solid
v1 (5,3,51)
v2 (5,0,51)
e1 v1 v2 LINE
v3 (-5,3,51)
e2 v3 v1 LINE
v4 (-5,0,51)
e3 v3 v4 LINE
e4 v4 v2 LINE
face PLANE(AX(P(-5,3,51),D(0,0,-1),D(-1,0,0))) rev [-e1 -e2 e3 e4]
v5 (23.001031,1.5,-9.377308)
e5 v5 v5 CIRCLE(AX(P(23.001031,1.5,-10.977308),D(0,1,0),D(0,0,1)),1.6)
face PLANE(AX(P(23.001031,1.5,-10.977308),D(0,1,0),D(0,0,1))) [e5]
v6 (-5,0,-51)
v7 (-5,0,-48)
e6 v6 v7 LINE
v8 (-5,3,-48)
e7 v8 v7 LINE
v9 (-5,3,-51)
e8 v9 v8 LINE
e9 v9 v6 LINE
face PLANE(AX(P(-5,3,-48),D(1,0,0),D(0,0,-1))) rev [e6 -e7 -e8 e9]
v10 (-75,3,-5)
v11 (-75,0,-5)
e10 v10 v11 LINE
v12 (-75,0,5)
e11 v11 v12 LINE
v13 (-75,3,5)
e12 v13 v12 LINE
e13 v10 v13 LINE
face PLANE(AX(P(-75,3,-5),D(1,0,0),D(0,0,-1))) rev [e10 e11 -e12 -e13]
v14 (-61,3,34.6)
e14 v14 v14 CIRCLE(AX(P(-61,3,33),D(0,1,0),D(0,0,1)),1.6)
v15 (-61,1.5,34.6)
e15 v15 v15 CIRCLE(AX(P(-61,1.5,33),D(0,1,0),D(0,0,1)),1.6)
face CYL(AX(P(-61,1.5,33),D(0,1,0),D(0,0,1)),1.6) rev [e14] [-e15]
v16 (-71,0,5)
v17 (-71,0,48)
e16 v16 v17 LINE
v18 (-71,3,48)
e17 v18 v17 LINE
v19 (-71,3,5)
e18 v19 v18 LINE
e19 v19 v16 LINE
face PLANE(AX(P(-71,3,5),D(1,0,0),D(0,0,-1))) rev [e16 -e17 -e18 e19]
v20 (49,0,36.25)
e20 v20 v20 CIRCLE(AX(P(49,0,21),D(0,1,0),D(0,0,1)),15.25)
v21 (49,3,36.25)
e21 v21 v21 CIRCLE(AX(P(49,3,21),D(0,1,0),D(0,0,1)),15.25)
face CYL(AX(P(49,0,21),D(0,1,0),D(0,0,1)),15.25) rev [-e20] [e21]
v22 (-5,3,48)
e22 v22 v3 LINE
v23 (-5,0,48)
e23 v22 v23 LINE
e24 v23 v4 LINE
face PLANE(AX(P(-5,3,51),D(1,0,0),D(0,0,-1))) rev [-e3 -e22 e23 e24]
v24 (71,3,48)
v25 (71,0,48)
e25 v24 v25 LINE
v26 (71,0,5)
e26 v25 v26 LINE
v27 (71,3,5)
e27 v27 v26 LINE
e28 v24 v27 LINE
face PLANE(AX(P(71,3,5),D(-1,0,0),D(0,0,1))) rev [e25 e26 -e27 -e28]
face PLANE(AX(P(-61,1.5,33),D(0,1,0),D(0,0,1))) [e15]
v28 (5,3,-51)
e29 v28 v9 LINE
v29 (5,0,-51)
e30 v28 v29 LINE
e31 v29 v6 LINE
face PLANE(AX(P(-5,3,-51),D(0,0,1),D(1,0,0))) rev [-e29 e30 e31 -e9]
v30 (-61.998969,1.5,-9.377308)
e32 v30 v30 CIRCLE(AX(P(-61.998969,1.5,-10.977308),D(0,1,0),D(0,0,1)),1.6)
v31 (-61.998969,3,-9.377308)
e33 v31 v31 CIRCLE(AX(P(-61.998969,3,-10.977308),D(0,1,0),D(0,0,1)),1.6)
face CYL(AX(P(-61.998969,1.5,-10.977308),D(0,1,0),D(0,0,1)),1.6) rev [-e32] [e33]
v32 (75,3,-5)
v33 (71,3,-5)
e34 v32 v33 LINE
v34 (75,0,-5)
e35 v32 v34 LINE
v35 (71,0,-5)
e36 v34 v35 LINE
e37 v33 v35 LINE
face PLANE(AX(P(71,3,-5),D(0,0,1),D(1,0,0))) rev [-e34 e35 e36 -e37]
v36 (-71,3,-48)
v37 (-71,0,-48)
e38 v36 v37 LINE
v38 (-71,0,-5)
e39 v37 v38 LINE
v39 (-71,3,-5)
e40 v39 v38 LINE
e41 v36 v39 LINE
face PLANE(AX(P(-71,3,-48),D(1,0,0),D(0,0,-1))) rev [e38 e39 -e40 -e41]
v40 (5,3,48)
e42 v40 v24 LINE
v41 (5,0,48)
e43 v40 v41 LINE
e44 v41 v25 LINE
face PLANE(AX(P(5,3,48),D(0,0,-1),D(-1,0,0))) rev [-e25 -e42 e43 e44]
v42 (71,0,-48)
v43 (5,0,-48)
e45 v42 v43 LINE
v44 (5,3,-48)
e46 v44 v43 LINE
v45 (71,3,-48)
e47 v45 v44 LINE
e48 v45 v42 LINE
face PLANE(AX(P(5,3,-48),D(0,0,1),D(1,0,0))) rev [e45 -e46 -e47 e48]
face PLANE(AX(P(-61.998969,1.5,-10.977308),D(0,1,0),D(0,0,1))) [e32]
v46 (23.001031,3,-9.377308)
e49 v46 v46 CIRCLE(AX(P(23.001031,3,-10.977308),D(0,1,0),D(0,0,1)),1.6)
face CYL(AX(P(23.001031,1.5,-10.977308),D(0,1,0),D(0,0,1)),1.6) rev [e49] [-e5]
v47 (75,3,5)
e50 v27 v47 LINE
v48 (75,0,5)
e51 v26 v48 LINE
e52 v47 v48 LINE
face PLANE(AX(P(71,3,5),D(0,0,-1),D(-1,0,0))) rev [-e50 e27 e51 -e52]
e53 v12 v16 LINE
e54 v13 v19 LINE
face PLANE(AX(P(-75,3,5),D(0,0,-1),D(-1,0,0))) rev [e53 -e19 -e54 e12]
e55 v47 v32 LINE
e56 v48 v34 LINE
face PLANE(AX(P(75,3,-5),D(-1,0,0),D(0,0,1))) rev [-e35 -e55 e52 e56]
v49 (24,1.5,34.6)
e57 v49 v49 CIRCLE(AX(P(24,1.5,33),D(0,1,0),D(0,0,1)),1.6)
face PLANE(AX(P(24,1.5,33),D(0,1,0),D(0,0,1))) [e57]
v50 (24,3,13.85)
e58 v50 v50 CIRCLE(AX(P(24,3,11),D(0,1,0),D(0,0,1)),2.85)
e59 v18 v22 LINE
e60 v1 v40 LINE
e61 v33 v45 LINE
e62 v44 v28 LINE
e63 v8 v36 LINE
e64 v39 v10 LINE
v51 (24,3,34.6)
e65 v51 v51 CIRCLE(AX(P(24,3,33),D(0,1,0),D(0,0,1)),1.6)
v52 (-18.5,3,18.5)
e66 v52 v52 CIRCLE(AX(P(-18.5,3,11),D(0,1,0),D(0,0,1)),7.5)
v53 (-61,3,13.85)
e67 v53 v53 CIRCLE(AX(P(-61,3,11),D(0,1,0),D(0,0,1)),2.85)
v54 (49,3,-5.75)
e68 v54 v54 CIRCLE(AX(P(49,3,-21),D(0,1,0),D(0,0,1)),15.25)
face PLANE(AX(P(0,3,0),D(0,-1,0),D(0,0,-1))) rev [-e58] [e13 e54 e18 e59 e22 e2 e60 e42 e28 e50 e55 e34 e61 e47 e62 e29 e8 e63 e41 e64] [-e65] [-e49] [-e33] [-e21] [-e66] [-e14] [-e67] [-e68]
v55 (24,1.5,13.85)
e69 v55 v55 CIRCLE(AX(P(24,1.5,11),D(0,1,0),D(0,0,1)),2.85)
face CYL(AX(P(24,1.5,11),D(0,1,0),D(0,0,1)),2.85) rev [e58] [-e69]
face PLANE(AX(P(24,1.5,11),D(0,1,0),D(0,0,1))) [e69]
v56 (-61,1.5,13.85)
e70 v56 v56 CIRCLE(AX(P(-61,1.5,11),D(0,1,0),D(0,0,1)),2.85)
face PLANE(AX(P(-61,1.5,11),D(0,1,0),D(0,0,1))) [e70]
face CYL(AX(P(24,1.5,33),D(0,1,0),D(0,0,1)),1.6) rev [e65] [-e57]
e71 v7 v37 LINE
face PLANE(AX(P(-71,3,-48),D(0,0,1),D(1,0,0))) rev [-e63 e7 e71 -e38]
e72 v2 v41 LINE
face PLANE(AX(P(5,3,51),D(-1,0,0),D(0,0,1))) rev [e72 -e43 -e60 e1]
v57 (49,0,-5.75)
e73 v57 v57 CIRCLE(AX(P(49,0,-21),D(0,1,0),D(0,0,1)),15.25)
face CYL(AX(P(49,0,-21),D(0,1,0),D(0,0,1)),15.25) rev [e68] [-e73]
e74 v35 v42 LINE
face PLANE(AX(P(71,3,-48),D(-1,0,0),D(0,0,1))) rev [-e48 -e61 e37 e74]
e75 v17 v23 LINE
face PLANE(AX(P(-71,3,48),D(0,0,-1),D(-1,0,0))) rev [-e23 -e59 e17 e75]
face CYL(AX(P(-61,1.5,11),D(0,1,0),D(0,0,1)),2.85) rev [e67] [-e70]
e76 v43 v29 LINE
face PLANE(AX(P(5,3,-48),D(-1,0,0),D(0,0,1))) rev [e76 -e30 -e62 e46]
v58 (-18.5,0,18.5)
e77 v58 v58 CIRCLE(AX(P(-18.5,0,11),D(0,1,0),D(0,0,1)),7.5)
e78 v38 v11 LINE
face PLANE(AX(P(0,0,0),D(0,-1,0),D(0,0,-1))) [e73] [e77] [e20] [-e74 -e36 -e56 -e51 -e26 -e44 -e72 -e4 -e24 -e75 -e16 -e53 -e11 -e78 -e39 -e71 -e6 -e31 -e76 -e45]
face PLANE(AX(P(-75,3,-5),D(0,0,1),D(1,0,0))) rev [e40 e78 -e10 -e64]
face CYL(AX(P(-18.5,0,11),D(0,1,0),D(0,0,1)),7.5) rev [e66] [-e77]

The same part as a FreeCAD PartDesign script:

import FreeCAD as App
import Part
import Sketcher
from FreeCAD import Vector
Q = App.Units.Quantity

doc = App.newDocument("Part")
body = doc.addObject("PartDesign::Body", "Body")

sketch1 = body.newObject("Sketcher::SketchObject", "Sketch")
sketch1.AttachmentSupport = (doc.getObject("XZ_Plane"), [""])
sketch1.MapMode = "FlatFace"
sketch1.addGeometry(Part.LineSegment(Vector(71, -48, 0), Vector(5, -48, 0)), False)
sketch1.addGeometry(Part.LineSegment(Vector(5, -48, 0), Vector(5, -51, 0)), False)
sketch1.addGeometry(Part.LineSegment(Vector(5, -51, 0), Vector(-5, -51, 0)), False)
sketch1.addGeometry(Part.LineSegment(Vector(-5, -51, 0), Vector(-5, -48, 0)), False)
sketch1.addGeometry(Part.LineSegment(Vector(-5, -48, 0), Vector(-71, -48, 0)), False)
sketch1.addGeometry(Part.LineSegment(Vector(-71, -48, 0), Vector(-71, -5, 0)), False)
sketch1.addGeometry(Part.LineSegment(Vector(-71, -5, 0), Vector(-75, -5, 0)), False)
sketch1.addGeometry(Part.LineSegment(Vector(-75, -5, 0), Vector(-75, 5, 0)), False)
sketch1.addGeometry(Part.LineSegment(Vector(-75, 5, 0), Vector(-71, 5, 0)), False)
sketch1.addGeometry(Part.LineSegment(Vector(-71, 5, 0), Vector(-71, 48, 0)), False)
sketch1.addGeometry(Part.LineSegment(Vector(-71, 48, 0), Vector(-5, 48, 0)), False)
sketch1.addGeometry(Part.LineSegment(Vector(-5, 48, 0), Vector(-5, 51, 0)), False)
sketch1.addGeometry(Part.LineSegment(Vector(-5, 51, 0), Vector(5, 51, 0)), False)
sketch1.addGeometry(Part.LineSegment(Vector(5, 51, 0), Vector(5, 48, 0)), False)
sketch1.addGeometry(Part.LineSegment(Vector(5, 48, 0), Vector(71, 48, 0)), False)
sketch1.addGeometry(Part.LineSegment(Vector(71, 48, 0), Vector(71, 5, 0)), False)
sketch1.addGeometry(Part.LineSegment(Vector(71, 5, 0), Vector(75, 5, 0)), False)
sketch1.addGeometry(Part.LineSegment(Vector(75, 5, 0), Vector(75, -5, 0)), False)
sketch1.addGeometry(Part.LineSegment(Vector(75, -5, 0), Vector(71, -5, 0)), False)
sketch1.addGeometry(Part.LineSegment(Vector(71, -5, 0), Vector(71, -48, 0)), False)
sketch1.addConstraint(Sketcher.Constraint("Coincident", 0, 2, 1, 1))
sketch1.addConstraint(Sketcher.Constraint("Coincident", 1, 2, 2, 1))
sketch1.addConstraint(Sketcher.Constraint("Coincident", 2, 2, 3, 1))
sketch1.addConstraint(Sketcher.Constraint("Coincident", 3, 2, 4, 1))
sketch1.addConstraint(Sketcher.Constraint("Coincident", 4, 2, 5, 1))
sketch1.addConstraint(Sketcher.Constraint("Coincident", 5, 2, 6, 1))
sketch1.addConstraint(Sketcher.Constraint("Coincident", 6, 2, 7, 1))
sketch1.addConstraint(Sketcher.Constraint("Coincident", 7, 2, 8, 1))
sketch1.addConstraint(Sketcher.Constraint("Coincident", 8, 2, 9, 1))
sketch1.addConstraint(Sketcher.Constraint("Coincident", 9, 2, 10, 1))
sketch1.addConstraint(Sketcher.Constraint("Coincident", 10, 2, 11, 1))
sketch1.addConstraint(Sketcher.Constraint("Coincident", 11, 2, 12, 1))
sketch1.addConstraint(Sketcher.Constraint("Coincident", 12, 2, 13, 1))
sketch1.addConstraint(Sketcher.Constraint("Coincident", 13, 2, 14, 1))
sketch1.addConstraint(Sketcher.Constraint("Coincident", 14, 2, 15, 1))
sketch1.addConstraint(Sketcher.Constraint("Coincident", 15, 2, 16, 1))
sketch1.addConstraint(Sketcher.Constraint("Coincident", 16, 2, 17, 1))
sketch1.addConstraint(Sketcher.Constraint("Coincident", 17, 2, 18, 1))
sketch1.addConstraint(Sketcher.Constraint("Coincident", 18, 2, 19, 1))
sketch1.addConstraint(Sketcher.Constraint("Coincident", 19, 2, 0, 1))
sketch1.addConstraint(Sketcher.Constraint("Horizontal", 0))
sketch1.addConstraint(Sketcher.Constraint("Vertical", 1))
sketch1.addConstraint(Sketcher.Constraint("Horizontal", 2))
sketch1.addConstraint(Sketcher.Constraint("Vertical", 3))
sketch1.addConstraint(Sketcher.Constraint("Horizontal", 4))
sketch1.addConstraint(Sketcher.Constraint("Vertical", 5))
sketch1.addConstraint(Sketcher.Constraint("Horizontal", 6))
sketch1.addConstraint(Sketcher.Constraint("Vertical", 7))
sketch1.addConstraint(Sketcher.Constraint("Horizontal", 8))
sketch1.addConstraint(Sketcher.Constraint("Vertical", 9))
sketch1.addConstraint(Sketcher.Constraint("Horizontal", 10))
sketch1.addConstraint(Sketcher.Constraint("Vertical", 11))
sketch1.addConstraint(Sketcher.Constraint("Horizontal", 12))
sketch1.addConstraint(Sketcher.Constraint("Vertical", 13))
sketch1.addConstraint(Sketcher.Constraint("Horizontal", 14))
sketch1.addConstraint(Sketcher.Constraint("Vertical", 15))
sketch1.addConstraint(Sketcher.Constraint("Horizontal", 16))
sketch1.addConstraint(Sketcher.Constraint("Vertical", 17))
sketch1.addConstraint(Sketcher.Constraint("Horizontal", 18))
sketch1.addConstraint(Sketcher.Constraint("Vertical", 19))
sketch1.addConstraint(Sketcher.Constraint("Symmetric", 0, 2, 10, 2, -1, 1))
sketch1.addConstraint(Sketcher.Constraint("Symmetric", 2, 2, 12, 2, -1, 1))
sketch1.addConstraint(Sketcher.Constraint("Symmetric", 4, 2, 14, 2, -1, 1))
sketch1.addConstraint(Sketcher.Constraint("Symmetric", 6, 2, 16, 2, -1, 1))
sketch1.addConstraint(Sketcher.Constraint("Symmetric", 8, 2, 18, 2, -1, 1))
sketch1.addConstraint(Sketcher.Constraint("Symmetric", 0, 2, 3, 2, -2))
sketch1.addConstraint(Sketcher.Constraint("Symmetric", 8, 2, 15, 2, -2))
sketch1.addConstraint(Sketcher.Constraint("Equal", 12, 7))
sketch1.addConstraint(Sketcher.Constraint("DistanceX", 0, 2, 0, 1, Q("66 mm")))
sketch1.addConstraint(Sketcher.Constraint("DistanceX", 2, 2, 2, 1, Q("10 mm")))
sketch1.addConstraint(Sketcher.Constraint("DistanceX", 6, 2, 6, 1, Q("4 mm")))
sketch1.addConstraint(Sketcher.Constraint("DistanceY", 1, 2, 1, 1, Q("3 mm")))
sketch1.addConstraint(Sketcher.Constraint("DistanceY", 5, 1, 5, 2, Q("43 mm")))
pad1 = body.newObject("PartDesign::Pad", "Pad")
pad1.Profile = sketch1
pad1.Length = 3
pad1.Reversed = True

sketch2 = body.newObject("Sketcher::SketchObject", "Sketch001")
sketch2.AttachmentSupport = (doc.getObject("XZ_Plane"), [""])
sketch2.MapMode = "FlatFace"
sketch2.AttachmentOffset = App.Placement(Vector(0, 0, -3), App.Rotation())
sketch2.addGeometry(Part.Circle(Vector(-61, 33, 0), Vector(0, 0, 1), 1.6), False)
sketch2.addGeometry(Part.Circle(Vector(24, 33, 0), Vector(0, 0, 1), 1.6), False)
sketch2.addGeometry(Part.Circle(Vector(-61, 11, 0), Vector(0, 0, 1), 2.9), False)
sketch2.addGeometry(Part.Circle(Vector(24, 11, 0), Vector(0, 0, 1), 2.9), False)
sketch2.addGeometry(Part.Circle(Vector(-62, -11, 0), Vector(0, 0, 1), 1.6), False)
sketch2.addGeometry(Part.Circle(Vector(23, -11, 0), Vector(0, 0, 1), 1.6), False)
sketch2.addConstraint(Sketcher.Constraint("Equal", 0, 1))
sketch2.addConstraint(Sketcher.Constraint("Equal", 2, 3))
sketch2.addConstraint(Sketcher.Constraint("Equal", 1, 4))
sketch2.addConstraint(Sketcher.Constraint("Equal", 4, 5))
sketch2.addConstraint(Sketcher.Constraint("Horizontal", 0, 3, 1, 3))
sketch2.addConstraint(Sketcher.Constraint("Horizontal", 2, 3, 3, 3))
sketch2.addConstraint(Sketcher.Constraint("Horizontal", 4, 3, 5, 3))
sketch2.addConstraint(Sketcher.Constraint("Vertical", 0, 3, 2, 3))
sketch2.addConstraint(Sketcher.Constraint("Vertical", 1, 3, 3, 3))
sketch2.addConstraint(Sketcher.Constraint("Diameter", 0, Q("3.2 mm")))
sketch2.addConstraint(Sketcher.Constraint("Diameter", 2, Q("5.7 mm")))
sketch2.addConstraint(Sketcher.Constraint("DistanceX", 0, 3, -1, 1, Q("61 mm")))
sketch2.addConstraint(Sketcher.Constraint("DistanceY", -1, 1, 0, 3, Q("33 mm")))
sketch2.addConstraint(Sketcher.Constraint("DistanceX", -1, 1, 1, 3, Q("24 mm")))
sketch2.addConstraint(Sketcher.Constraint("DistanceY", -1, 1, 2, 3, Q("11 mm")))
sketch2.addConstraint(Sketcher.Constraint("DistanceX", 4, 3, 5, 3, Q("85 mm")))
sketch2.addConstraint(Sketcher.Constraint("DistanceX", 4, 3, -1, 1, Q("61.998969 mm")))
sketch2.addConstraint(Sketcher.Constraint("DistanceY", 4, 3, -1, 1, Q("10.977308 mm")))
pocket1 = body.newObject("PartDesign::Pocket", "Pocket")
pocket1.Profile = sketch2
pocket1.Length = 1.5
pocket1.Reversed = True

sketch3 = body.newObject("Sketcher::SketchObject", "Sketch002")
sketch3.AttachmentSupport = (doc.getObject("XZ_Plane"), [""])
sketch3.MapMode = "FlatFace"
sketch3.AttachmentOffset = App.Placement(Vector(0, 0, -3), App.Rotation())
sketch3.addGeometry(Part.Circle(Vector(-18, 11, 0), Vector(0, 0, 1), 8), False)
sketch3.addGeometry(Part.Circle(Vector(49, 21, 0), Vector(0, 0, 1), 15), False)
sketch3.addGeometry(Part.Circle(Vector(49, -21, 0), Vector(0, 0, 1), 15), False)
sketch3.addConstraint(Sketcher.Constraint("Equal", 1, 2))
sketch3.addConstraint(Sketcher.Constraint("Symmetric", 1, 3, 2, 3, -1))
sketch3.addConstraint(Sketcher.Constraint("Diameter", 0, Q("15 mm")))
sketch3.addConstraint(Sketcher.Constraint("Diameter", 1, Q("30.5 mm")))
sketch3.addConstraint(Sketcher.Constraint("DistanceY", -1, 1, 0, 3, Q("11 mm")))
sketch3.addConstraint(Sketcher.Constraint("DistanceX", -1, 1, 1, 3, Q("49 mm")))
sketch3.addConstraint(Sketcher.Constraint("DistanceY", -1, 1, 1, 3, Q("21 mm")))
sketch3.addConstraint(Sketcher.Constraint("DistanceX", 0, 3, -1, 1, Q("18.5 mm")))
pocket2 = body.newObject("PartDesign::Pocket", "Pocket001")
pocket2.Profile = sketch3
pocket2.Length = 3
pocket2.Reversed = True

doc.recompute()
